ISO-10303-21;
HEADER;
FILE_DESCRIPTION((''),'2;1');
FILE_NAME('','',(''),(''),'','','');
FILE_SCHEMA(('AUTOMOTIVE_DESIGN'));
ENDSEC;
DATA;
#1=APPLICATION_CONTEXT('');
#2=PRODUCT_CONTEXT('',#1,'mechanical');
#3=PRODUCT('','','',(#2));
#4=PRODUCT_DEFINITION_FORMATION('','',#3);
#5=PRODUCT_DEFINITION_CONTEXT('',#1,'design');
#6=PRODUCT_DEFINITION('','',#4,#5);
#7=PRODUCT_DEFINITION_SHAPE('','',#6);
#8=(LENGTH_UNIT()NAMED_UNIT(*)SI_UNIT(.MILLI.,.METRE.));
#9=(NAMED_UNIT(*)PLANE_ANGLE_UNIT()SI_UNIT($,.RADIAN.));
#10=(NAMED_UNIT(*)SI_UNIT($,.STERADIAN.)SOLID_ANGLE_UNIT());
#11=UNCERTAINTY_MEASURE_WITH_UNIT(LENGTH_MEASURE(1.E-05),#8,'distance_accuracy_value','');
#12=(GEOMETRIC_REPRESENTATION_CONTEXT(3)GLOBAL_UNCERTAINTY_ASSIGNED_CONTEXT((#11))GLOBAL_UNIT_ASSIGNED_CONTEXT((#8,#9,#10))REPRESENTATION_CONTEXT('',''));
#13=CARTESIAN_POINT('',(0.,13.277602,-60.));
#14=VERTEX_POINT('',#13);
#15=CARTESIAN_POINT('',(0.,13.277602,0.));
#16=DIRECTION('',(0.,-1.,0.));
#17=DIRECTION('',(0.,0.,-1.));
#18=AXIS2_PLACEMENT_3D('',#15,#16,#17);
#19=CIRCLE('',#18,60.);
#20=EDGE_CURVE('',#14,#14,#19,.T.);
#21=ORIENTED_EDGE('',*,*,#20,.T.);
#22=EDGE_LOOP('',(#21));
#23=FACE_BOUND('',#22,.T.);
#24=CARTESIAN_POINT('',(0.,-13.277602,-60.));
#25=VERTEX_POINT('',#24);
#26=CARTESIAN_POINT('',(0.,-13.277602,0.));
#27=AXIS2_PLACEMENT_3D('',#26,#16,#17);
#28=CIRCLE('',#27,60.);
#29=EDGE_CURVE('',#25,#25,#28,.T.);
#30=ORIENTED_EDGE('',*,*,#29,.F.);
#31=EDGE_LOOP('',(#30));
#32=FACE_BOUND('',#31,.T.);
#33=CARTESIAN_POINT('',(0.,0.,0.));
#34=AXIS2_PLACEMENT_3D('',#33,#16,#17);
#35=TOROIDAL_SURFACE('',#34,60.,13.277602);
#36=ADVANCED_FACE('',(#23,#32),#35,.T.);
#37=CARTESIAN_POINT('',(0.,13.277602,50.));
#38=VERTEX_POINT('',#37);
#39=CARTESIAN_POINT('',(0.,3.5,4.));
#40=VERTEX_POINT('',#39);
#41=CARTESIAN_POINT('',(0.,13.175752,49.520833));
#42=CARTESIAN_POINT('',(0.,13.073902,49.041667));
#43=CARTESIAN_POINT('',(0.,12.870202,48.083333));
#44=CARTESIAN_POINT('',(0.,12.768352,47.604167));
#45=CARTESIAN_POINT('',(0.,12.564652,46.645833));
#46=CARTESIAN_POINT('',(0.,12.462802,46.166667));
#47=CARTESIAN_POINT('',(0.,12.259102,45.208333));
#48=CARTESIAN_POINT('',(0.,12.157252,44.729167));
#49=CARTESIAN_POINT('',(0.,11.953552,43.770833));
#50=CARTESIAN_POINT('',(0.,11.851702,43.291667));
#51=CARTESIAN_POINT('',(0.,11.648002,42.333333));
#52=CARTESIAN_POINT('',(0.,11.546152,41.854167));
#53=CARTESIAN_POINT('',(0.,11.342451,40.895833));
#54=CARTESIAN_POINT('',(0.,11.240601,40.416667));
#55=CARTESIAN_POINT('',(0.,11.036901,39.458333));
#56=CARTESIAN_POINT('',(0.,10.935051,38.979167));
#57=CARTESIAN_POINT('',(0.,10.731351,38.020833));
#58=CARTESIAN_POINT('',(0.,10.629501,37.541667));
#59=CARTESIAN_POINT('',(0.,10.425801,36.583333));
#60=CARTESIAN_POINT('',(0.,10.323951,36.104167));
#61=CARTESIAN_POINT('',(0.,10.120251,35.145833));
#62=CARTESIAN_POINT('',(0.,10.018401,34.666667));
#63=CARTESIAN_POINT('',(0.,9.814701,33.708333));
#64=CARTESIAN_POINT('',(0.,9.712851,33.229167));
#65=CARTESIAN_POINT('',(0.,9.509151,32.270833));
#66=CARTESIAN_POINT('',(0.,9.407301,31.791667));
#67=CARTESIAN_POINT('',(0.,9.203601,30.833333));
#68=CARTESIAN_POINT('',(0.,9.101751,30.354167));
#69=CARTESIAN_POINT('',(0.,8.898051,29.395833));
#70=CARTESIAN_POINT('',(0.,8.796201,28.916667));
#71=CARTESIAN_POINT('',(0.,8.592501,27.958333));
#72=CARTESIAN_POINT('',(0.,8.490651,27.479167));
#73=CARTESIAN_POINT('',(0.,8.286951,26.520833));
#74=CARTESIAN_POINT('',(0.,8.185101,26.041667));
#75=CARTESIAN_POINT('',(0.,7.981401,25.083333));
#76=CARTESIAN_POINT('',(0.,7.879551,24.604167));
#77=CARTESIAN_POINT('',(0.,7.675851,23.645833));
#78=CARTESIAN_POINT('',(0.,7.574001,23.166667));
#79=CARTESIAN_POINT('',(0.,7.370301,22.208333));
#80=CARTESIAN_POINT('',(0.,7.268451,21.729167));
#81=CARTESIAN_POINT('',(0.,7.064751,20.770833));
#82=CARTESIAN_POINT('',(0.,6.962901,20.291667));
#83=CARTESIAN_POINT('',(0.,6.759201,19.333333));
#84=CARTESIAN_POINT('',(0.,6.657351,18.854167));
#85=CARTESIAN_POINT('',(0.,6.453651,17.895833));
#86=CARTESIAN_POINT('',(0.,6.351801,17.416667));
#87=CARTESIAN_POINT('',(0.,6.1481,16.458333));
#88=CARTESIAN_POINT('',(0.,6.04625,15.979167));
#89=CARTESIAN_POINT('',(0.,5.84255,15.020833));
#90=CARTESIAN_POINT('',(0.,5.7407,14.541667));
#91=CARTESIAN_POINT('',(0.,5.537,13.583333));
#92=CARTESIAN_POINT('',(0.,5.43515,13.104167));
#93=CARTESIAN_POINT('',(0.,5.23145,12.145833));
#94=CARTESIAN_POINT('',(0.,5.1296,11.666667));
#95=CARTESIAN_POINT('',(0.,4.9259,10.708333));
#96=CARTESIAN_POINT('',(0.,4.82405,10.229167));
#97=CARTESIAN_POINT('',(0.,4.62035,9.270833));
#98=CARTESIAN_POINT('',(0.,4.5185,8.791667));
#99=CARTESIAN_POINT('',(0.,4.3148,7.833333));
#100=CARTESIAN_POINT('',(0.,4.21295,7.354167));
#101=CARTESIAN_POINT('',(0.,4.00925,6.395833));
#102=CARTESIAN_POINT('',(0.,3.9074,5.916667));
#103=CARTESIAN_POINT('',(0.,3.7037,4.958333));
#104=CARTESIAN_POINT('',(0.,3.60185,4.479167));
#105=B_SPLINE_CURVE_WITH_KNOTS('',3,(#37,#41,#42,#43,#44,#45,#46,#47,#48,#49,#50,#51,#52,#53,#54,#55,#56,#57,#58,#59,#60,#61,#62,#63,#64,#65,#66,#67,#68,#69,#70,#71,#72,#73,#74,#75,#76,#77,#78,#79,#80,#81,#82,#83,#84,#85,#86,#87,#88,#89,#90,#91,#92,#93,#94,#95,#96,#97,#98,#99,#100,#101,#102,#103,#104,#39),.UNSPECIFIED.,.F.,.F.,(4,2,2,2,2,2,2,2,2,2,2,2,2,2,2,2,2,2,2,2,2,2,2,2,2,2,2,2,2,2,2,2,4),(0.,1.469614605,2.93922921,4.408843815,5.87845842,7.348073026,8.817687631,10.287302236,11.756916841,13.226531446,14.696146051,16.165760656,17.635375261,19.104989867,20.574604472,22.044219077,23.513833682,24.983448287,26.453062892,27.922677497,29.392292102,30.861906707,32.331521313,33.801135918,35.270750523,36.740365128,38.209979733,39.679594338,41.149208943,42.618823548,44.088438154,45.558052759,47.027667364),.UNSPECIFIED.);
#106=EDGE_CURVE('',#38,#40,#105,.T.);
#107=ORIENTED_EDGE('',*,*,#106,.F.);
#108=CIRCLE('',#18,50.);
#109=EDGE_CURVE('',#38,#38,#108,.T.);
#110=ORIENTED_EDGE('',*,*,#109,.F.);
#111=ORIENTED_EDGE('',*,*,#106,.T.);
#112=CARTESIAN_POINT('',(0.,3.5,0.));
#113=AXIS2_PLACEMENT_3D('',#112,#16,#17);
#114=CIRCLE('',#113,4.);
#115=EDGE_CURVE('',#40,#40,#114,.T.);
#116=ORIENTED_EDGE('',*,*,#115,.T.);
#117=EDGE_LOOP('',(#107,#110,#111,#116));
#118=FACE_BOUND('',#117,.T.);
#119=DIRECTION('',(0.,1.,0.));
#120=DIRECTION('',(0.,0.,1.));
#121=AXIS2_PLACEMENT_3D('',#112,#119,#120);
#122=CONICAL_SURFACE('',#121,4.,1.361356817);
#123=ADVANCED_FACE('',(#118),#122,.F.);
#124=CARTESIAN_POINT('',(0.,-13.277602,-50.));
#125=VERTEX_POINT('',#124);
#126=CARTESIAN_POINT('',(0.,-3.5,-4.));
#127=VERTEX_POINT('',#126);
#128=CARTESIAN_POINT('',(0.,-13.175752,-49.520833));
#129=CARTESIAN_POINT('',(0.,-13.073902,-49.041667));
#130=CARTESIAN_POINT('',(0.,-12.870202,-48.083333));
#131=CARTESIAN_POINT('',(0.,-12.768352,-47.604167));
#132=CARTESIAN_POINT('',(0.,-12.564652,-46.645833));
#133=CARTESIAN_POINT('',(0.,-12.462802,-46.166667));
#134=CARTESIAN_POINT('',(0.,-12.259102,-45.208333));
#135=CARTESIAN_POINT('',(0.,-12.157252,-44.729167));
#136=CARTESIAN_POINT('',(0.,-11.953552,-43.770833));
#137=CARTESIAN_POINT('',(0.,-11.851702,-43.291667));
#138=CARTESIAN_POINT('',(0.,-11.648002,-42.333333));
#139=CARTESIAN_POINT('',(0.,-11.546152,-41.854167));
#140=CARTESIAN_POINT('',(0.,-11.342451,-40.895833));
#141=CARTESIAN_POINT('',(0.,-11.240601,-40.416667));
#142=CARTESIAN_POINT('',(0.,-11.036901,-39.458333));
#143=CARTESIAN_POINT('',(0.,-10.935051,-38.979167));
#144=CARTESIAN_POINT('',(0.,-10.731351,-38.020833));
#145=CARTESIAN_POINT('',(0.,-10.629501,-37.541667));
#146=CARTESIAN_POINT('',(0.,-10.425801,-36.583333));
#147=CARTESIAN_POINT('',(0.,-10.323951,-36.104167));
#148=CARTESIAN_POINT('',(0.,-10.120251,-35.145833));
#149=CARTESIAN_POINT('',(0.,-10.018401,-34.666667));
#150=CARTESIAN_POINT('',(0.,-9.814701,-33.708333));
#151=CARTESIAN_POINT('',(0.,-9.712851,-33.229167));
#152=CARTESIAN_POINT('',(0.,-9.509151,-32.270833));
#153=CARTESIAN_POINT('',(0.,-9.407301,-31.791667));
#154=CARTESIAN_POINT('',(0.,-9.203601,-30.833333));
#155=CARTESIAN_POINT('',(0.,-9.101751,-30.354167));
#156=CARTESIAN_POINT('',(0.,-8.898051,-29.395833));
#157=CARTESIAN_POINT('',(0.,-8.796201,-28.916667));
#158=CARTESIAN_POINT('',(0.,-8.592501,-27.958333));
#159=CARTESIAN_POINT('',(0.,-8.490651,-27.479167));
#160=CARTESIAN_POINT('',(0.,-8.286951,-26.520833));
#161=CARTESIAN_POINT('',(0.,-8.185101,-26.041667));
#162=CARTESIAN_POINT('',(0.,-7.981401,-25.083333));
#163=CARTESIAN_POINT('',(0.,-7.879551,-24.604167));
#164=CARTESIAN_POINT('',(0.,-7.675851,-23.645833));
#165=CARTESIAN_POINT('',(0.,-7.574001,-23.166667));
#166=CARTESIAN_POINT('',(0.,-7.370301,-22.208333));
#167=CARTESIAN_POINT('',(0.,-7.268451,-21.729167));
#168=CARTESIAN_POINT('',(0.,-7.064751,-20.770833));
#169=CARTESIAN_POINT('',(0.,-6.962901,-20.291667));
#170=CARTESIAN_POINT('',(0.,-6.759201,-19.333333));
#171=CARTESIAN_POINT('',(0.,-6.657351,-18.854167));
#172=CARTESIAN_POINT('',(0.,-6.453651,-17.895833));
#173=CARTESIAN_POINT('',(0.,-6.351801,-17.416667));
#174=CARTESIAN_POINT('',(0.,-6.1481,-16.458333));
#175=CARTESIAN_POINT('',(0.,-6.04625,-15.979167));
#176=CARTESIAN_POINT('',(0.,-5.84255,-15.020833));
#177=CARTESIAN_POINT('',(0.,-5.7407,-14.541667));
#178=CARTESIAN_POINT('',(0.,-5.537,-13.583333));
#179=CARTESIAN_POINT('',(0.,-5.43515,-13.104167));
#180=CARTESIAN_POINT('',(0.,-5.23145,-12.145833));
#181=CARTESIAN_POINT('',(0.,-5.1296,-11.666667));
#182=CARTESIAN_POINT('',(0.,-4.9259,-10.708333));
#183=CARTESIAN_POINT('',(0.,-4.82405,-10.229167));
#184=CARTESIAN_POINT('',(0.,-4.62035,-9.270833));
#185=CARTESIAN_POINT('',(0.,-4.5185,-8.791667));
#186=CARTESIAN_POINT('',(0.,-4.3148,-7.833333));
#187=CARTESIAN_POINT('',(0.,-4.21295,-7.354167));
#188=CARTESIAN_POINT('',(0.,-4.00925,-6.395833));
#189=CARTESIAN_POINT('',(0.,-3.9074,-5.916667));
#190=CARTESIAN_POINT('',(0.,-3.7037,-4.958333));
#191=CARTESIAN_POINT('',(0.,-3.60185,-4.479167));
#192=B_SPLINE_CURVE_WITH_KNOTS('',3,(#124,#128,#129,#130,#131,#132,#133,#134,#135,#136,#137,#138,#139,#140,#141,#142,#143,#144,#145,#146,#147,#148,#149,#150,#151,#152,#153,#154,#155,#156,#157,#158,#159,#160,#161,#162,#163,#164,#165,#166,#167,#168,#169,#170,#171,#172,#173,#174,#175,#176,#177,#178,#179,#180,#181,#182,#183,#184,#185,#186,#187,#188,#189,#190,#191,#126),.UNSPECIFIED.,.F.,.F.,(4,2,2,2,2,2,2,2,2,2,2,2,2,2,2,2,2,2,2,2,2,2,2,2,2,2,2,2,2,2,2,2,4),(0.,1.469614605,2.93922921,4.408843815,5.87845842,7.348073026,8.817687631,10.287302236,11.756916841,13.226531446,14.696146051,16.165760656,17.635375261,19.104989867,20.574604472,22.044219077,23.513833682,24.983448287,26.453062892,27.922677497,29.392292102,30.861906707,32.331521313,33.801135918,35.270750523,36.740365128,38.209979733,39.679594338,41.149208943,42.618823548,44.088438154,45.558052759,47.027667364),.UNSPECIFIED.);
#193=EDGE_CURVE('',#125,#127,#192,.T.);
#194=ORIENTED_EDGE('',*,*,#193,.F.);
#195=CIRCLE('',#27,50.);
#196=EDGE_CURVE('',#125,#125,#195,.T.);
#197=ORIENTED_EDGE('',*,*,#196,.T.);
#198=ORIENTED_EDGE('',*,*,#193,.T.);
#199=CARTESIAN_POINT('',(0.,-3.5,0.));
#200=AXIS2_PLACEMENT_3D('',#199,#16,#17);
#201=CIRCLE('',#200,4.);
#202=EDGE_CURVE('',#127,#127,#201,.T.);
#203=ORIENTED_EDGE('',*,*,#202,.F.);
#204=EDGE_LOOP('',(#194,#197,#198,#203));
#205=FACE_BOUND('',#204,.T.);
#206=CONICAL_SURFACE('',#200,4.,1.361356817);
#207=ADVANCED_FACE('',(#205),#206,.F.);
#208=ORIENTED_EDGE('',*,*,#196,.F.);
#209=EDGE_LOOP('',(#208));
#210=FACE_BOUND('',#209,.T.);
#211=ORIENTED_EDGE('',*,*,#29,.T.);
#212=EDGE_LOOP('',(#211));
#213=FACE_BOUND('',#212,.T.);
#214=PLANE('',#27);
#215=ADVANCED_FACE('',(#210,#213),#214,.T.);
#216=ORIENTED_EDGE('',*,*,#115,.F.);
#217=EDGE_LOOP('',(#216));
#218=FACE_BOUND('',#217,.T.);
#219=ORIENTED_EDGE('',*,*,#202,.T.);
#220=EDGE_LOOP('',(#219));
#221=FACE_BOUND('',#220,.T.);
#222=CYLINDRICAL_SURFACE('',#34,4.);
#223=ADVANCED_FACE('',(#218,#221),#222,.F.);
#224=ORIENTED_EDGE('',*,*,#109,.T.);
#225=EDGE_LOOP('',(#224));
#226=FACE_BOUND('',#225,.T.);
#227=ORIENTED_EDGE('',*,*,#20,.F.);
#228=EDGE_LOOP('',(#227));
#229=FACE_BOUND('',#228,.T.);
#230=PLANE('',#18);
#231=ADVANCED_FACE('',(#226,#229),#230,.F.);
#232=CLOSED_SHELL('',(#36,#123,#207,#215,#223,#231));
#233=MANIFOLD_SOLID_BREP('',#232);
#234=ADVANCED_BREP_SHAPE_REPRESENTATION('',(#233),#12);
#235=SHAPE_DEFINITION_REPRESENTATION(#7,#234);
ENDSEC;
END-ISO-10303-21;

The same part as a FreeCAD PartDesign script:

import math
import FreeCAD as App
import Part
import Sketcher

V = App.Vector
Q = App.Units.Quantity

doc = App.newDocument("Part")
body = doc.addObject("PartDesign::Body", "Body")

sketch1 = doc.addObject("Sketcher::SketchObject", "Sketch")
body.addObject(sketch1)
sketch1.AttachmentSupport = (doc.XY_Plane, [""])
sketch1.MapMode = "FlatFace"
sketch1.addGeometry([
    Part.LineSegment(V(50, -13, 0), V(60, -13, 0)),
    Part.ArcOfCircle(Part.Circle(V(60, 0, 0), V(0, 0, 1), 13), math.radians(-90), math.radians(90)),
    Part.LineSegment(V(60, 13, 0), V(50, 13, 0)),
    Part.LineSegment(V(50, 13, 0), V(4, 4, 0)),
    Part.LineSegment(V(4, 4, 0), V(4, -4, 0)),
    Part.LineSegment(V(4, -4, 0), V(50, -13, 0)),
], False)
sketch1.addConstraint([
    Sketcher.Constraint("Tangent", 0, 2, 1, 1),
    Sketcher.Constraint("Tangent", 1, 2, 2, 1),
    Sketcher.Constraint("Coincident", 2, 2, 3, 1),
    Sketcher.Constraint("Coincident", 3, 2, 4, 1),
    Sketcher.Constraint("Coincident", 4, 2, 5, 1),
    Sketcher.Constraint("Coincident", 5, 2, 0, 1),
    Sketcher.Constraint("Horizontal", 0),
    Sketcher.Constraint("Horizontal", 2),
    Sketcher.Constraint("Vertical", 4),
    Sketcher.Constraint("Symmetric", 2, 2, 5, 2, -1),
    Sketcher.Constraint("Equal", 3, 5),
    Sketcher.Constraint("DistanceX", 0, 1, 0, 2, Q("10 mm")),
    Sketcher.Constraint("DistanceY", 4, 2, 4, 1, Q("7 mm")),
    Sketcher.Constraint("Angle", 3, Q("-168 deg")),
    Sketcher.Constraint("DistanceX", -1, 1, 1, 3, Q("60 mm")),
    Sketcher.Constraint("DistanceX", -1, 1, 3, 2, Q("4 mm")),
])
revolution = doc.addObject("PartDesign::Revolution", "Revolution")
body.addObject(revolution)
revolution.Profile = sketch1
revolution.ReferenceAxis = (sketch1, ["V_Axis"])
revolution.Angle = 360

doc.recompute()
